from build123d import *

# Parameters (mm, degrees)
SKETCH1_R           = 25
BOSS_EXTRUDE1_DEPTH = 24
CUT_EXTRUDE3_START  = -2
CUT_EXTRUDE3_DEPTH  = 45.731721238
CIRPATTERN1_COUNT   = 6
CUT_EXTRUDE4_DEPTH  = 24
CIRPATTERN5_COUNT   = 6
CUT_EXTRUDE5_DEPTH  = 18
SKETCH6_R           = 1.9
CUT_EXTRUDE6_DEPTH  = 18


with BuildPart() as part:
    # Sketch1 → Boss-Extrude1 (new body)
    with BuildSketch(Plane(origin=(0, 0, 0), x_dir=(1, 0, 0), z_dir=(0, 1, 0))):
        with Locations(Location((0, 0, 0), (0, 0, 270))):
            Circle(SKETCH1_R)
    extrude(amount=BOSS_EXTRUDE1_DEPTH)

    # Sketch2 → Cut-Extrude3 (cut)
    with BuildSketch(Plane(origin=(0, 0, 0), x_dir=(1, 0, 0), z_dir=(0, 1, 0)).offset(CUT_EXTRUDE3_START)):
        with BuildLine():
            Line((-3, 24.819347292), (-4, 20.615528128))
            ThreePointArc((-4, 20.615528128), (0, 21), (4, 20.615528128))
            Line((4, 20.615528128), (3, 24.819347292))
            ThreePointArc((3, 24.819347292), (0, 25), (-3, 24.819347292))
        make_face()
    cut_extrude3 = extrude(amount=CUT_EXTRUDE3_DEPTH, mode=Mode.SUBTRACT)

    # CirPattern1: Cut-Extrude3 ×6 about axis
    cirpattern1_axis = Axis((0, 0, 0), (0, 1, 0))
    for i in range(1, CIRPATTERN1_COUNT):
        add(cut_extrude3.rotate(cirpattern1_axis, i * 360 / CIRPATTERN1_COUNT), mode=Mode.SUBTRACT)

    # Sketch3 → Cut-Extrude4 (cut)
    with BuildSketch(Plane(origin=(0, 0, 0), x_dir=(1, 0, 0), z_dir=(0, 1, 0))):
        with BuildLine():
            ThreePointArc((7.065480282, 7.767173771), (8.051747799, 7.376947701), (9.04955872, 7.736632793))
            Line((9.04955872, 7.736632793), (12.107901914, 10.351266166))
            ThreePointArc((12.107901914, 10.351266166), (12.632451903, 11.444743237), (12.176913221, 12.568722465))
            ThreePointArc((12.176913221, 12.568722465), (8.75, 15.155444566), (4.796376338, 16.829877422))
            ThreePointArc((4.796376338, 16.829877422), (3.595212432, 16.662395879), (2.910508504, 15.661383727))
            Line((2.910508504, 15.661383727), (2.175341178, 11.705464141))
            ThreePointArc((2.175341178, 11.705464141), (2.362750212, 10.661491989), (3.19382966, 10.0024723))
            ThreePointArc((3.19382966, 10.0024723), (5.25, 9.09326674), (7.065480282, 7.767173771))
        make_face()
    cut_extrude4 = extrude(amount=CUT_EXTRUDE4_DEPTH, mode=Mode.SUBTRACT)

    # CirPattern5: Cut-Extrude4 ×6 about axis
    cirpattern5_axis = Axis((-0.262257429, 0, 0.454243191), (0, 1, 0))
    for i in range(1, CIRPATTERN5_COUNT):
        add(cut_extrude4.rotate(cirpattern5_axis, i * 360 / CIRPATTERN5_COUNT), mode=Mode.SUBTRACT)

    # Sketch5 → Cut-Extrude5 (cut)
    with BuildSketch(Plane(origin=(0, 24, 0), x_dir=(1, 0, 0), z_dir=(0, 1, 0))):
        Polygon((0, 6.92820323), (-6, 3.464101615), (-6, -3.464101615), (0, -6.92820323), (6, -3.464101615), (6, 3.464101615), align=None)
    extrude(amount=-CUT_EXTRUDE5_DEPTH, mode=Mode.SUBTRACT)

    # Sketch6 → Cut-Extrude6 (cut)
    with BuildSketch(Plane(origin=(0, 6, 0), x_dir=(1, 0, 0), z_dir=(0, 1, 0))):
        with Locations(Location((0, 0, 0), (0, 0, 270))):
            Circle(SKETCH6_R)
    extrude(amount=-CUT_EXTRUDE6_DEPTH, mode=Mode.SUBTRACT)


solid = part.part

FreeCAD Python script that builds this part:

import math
import FreeCAD as App
import Part
import Sketcher
from FreeCAD import Vector
Q = App.Units.Quantity

doc = App.newDocument("Part")
body = doc.addObject("PartDesign::Body", "Body")

# Sketch on XZ plane
sketch1 = body.newObject("Sketcher::SketchObject", "Sketch")
sketch1.AttachmentSupport = (doc.getObject("XZ_Plane"), [""])
sketch1.MapMode = "FlatFace"
sketch1.addGeometry(Part.Circle(Vector(0, 0, 0), Vector(0, 0, 1), 25), False)
sketch1.addConstraint([
    Sketcher.Constraint("Coincident", 0, 3, -1, 1),
    Sketcher.Constraint("Diameter", 0, Q("50 mm")),
])
pad1 = body.newObject("PartDesign::Pad", "Pad")
pad1.Profile = sketch1
pad1.Length = 24
pad1.Reversed = True

# Sketch on XZ plane
sketch2 = body.newObject("Sketcher::SketchObject", "Sketch001")
sketch2.AttachmentSupport = (doc.getObject("XZ_Plane"), [""])
sketch2.MapMode = "FlatFace"
sketch2.AttachmentOffset = App.Placement(Vector(0, 0, 2), App.Rotation())
sketch2.addGeometry([
    Part.LineSegment(Vector(-3, -24.8, 0), Vector(-4, -20.6, 0)),
    Part.ArcOfCircle(Part.Circle(Vector(0, 0, 0), Vector(0, 0, 1), 21), math.radians(-101), math.radians(-79)),
    Part.LineSegment(Vector(4, -20.6, 0), Vector(3, -24.8, 0)),
    Part.ArcOfCircle(Part.Circle(Vector(0, 0, 0), Vector(0, 0, 1), 25), math.radians(-96.89), math.radians(-83.11)),
], False)
sketch2.addConstraint([
    Sketcher.Constraint("Coincident", 0, 2, 1, 1),
    Sketcher.Constraint("Coincident", 1, 2, 2, 1),
    Sketcher.Constraint("Coincident", 2, 2, 3, 2),
    Sketcher.Constraint("Coincident", 3, 1, 0, 1),
    Sketcher.Constraint("Coincident", 1, 3, -1, 1),
    Sketcher.Constraint("Coincident", 3, 3, -1, 1),
    Sketcher.Constraint("Horizontal", 0, 2, 1, 2),
    Sketcher.Constraint("Horizontal", 2, 2, 3, 1),
    Sketcher.Constraint("Radius", 1, Q("21 mm")),
    Sketcher.Constraint("Radius", 3, Q("25 mm")),
    Sketcher.Constraint("DistanceX", 0, 2, -1, 1, Q("4 mm")),
    Sketcher.Constraint("DistanceX", -1, 1, 2, 2, Q("3 mm")),
])
pocket1 = body.newObject("PartDesign::Pocket", "Pocket")
pocket1.Profile = sketch2
pocket1.Length = 45.731721
doc.recompute()

polarpattern = body.newObject("PartDesign::PolarPattern", "PolarPattern")
polarpattern.Originals = [pocket1]
polarpattern.Axis = (doc.getObject("Y_Axis"), [""])
polarpattern.Angle = 360
polarpattern.Occurrences = 6
body.Tip = polarpattern

# Sketch on XZ plane
sketch3 = body.newObject("Sketcher::SketchObject", "Sketch002")
sketch3.AttachmentSupport = (doc.getObject("XZ_Plane"), [""])
sketch3.MapMode = "FlatFace"
sketch3.addGeometry([
    Part.ArcOfCircle(Part.Circle(Vector(8.1, -8.9, 0), Vector(0, 0, 1), 1.5), math.radians(49), math.radians(132)),  # 0
    Part.LineSegment(Vector(9, -7.7, 0), Vector(12.1, -10.4, 0)),  # 1
    Part.ArcOfCircle(Part.Circle(Vector(11.1, -11.5, 0), Vector(0, 0, 1), 1.5), math.radians(-46), math.radians(49)),  # 2
    Part.ArcOfCircle(Part.Circle(Vector(0, 0, 0), Vector(0, 0, 1), 17.5), math.radians(-74), math.radians(-46)),  # 3
    Part.ArcOfCircle(Part.Circle(Vector(4.4, -15.4, 0), Vector(0, 0, 1), 1.5), math.radians(-169), math.radians(-74)),  # 4
    Part.LineSegment(Vector(2.9, -15.7, 0), Vector(2.2, -11.7, 0)),  # 5
    Part.ArcOfCircle(Part.Circle(Vector(3.7, -11.4, 0), Vector(0, 0, 1), 1.5), math.radians(108), math.radians(191)),  # 6
    Part.ArcOfCircle(Part.Circle(Vector(0, 0, 0), Vector(0, 0, 1), 10.5), math.radians(-72), math.radians(-48)),  # 7
], False)
sketch3.addConstraint([
    Sketcher.Constraint("Tangent", 0, 1, 1, 1),
    Sketcher.Constraint("Tangent", 1, 2, 2, 2),
    Sketcher.Constraint("Tangent", 2, 1, 3, 2),
    Sketcher.Constraint("Tangent", 3, 1, 4, 2),
    Sketcher.Constraint("Tangent", 4, 1, 5, 1),
    Sketcher.Constraint("Tangent", 5, 2, 6, 2),
    Sketcher.Constraint("Tangent", 6, 1, 7, 1),
    Sketcher.Constraint("Tangent", 7, 2, 0, 2),
    Sketcher.Constraint("Coincident", 3, 3, -1, 1),
    Sketcher.Constraint("Coincident", 7, 3, -1, 1),
    Sketcher.Constraint("Equal", 0, 2),
    Sketcher.Constraint("Equal", 2, 4),
    Sketcher.Constraint("Equal", 4, 6),
    Sketcher.Constraint("Equal", 1, 5),
    Sketcher.Constraint("Radius", 0, Q("1.5 mm")),
    Sketcher.Constraint("Radius", 3, Q("17.5 mm")),
    Sketcher.Constraint("Radius", 7, Q("10.5 mm")),
    Sketcher.Constraint("DistanceX", -1, 1, 1, 2, Q("12.107902 mm")),
    Sketcher.Constraint("DistanceX", 4, 3, 0, 1, Q("4.6643 mm")),
    Sketcher.Constraint("DistanceX", 3, 1, 2, 3, Q("6.336801 mm")),
])
pocket2 = body.newObject("PartDesign::Pocket", "Pocket001")
pocket2.Profile = sketch3
pocket2.Length = 24
doc.recompute()

datumline = body.newObject("PartDesign::Line", "DatumLine")
datumline.Placement = App.Placement(Vector(-0.262257, 0, 0.454243), App.Rotation(Vector(0, 0, 1), Vector(0, 1, 0)))
polarpattern2 = body.newObject("PartDesign::PolarPattern", "PolarPattern001")
polarpattern2.Originals = [pocket2]
polarpattern2.Axis = (datumline, [""])
polarpattern2.Angle = 360
polarpattern2.Occurrences = 6
body.Tip = polarpattern2

# Sketch on XZ plane
sketch4 = body.newObject("Sketcher::SketchObject", "Sketch003")
sketch4.AttachmentSupport = (doc.getObject("XZ_Plane"), [""])
sketch4.MapMode = "FlatFace"
sketch4.AttachmentOffset = App.Placement(Vector(0, 0, -24), App.Rotation())
sketch4.addGeometry([
    Part.LineSegment(Vector(0, -7, 0), Vector(-6, -3, 0)),  # 0
    Part.LineSegment(Vector(-6, -3, 0), Vector(-6, 3, 0)),  # 1
    Part.LineSegment(Vector(-6, 3, 0), Vector(0, 7, 0)),  # 2
    Part.LineSegment(Vector(0, 7, 0), Vector(6, 3, 0)),  # 3
    Part.LineSegment(Vector(6, 3, 0), Vector(6, -3, 0)),  # 4
    Part.LineSegment(Vector(6, -3, 0), Vector(0, -7, 0)),  # 5
], False)
sketch4.addConstraint([
    Sketcher.Constraint("Coincident", 0, 2, 1, 1),
    Sketcher.Constraint("Coincident", 1, 2, 2, 1),
    Sketcher.Constraint("Coincident", 2, 2, 3, 1),
    Sketcher.Constraint("Coincident", 3, 2, 4, 1),
    Sketcher.Constraint("Coincident", 4, 2, 5, 1),
    Sketcher.Constraint("Coincident", 5, 2, 0, 1),
    Sketcher.Constraint("Vertical", 1),
    Sketcher.Constraint("Vertical", 4),
    Sketcher.Constraint("Symmetric", 0, 2, 3, 2, -1, 1),
    Sketcher.Constraint("Symmetric", 2, 2, 5, 2, -1, 1),
    Sketcher.Constraint("PointOnObject", 2, 2, -2),
    Sketcher.Constraint("Parallel", 2, 5),
    Sketcher.Constraint("Horizontal", 1, 2, 3, 2),
    Sketcher.Constraint("Angle", 0, Q("150 deg")),
    Sketcher.Constraint("DistanceX", 0, 2, -1, 1, Q("6 mm")),
    Sketcher.Constraint("DistanceY", 0, 2, -1, 1, Q("3.464102 mm")),
])
pocket3 = body.newObject("PartDesign::Pocket", "Pocket002")
pocket3.Profile = sketch4
pocket3.Length = 18
pocket3.Reversed = True

# Sketch on XZ plane
sketch5 = body.newObject("Sketcher::SketchObject", "Sketch004")
sketch5.AttachmentSupport = (doc.getObject("XZ_Plane"), [""])
sketch5.MapMode = "FlatFace"
sketch5.AttachmentOffset = App.Placement(Vector(0, 0, -6), App.Rotation())
sketch5.addGeometry(Part.Circle(Vector(0, 0, 0), Vector(0, 0, 1), 1.9), False)
sketch5.addConstraint([
    Sketcher.Constraint("Coincident", 0, 3, -1, 1),
    Sketcher.Constraint("Diameter", 0, Q("3.8 mm")),
])
pocket4 = body.newObject("PartDesign::Pocket", "Pocket003")
pocket4.Profile = sketch5
pocket4.Length = 18
pocket4.Reversed = True

doc.recompute()
